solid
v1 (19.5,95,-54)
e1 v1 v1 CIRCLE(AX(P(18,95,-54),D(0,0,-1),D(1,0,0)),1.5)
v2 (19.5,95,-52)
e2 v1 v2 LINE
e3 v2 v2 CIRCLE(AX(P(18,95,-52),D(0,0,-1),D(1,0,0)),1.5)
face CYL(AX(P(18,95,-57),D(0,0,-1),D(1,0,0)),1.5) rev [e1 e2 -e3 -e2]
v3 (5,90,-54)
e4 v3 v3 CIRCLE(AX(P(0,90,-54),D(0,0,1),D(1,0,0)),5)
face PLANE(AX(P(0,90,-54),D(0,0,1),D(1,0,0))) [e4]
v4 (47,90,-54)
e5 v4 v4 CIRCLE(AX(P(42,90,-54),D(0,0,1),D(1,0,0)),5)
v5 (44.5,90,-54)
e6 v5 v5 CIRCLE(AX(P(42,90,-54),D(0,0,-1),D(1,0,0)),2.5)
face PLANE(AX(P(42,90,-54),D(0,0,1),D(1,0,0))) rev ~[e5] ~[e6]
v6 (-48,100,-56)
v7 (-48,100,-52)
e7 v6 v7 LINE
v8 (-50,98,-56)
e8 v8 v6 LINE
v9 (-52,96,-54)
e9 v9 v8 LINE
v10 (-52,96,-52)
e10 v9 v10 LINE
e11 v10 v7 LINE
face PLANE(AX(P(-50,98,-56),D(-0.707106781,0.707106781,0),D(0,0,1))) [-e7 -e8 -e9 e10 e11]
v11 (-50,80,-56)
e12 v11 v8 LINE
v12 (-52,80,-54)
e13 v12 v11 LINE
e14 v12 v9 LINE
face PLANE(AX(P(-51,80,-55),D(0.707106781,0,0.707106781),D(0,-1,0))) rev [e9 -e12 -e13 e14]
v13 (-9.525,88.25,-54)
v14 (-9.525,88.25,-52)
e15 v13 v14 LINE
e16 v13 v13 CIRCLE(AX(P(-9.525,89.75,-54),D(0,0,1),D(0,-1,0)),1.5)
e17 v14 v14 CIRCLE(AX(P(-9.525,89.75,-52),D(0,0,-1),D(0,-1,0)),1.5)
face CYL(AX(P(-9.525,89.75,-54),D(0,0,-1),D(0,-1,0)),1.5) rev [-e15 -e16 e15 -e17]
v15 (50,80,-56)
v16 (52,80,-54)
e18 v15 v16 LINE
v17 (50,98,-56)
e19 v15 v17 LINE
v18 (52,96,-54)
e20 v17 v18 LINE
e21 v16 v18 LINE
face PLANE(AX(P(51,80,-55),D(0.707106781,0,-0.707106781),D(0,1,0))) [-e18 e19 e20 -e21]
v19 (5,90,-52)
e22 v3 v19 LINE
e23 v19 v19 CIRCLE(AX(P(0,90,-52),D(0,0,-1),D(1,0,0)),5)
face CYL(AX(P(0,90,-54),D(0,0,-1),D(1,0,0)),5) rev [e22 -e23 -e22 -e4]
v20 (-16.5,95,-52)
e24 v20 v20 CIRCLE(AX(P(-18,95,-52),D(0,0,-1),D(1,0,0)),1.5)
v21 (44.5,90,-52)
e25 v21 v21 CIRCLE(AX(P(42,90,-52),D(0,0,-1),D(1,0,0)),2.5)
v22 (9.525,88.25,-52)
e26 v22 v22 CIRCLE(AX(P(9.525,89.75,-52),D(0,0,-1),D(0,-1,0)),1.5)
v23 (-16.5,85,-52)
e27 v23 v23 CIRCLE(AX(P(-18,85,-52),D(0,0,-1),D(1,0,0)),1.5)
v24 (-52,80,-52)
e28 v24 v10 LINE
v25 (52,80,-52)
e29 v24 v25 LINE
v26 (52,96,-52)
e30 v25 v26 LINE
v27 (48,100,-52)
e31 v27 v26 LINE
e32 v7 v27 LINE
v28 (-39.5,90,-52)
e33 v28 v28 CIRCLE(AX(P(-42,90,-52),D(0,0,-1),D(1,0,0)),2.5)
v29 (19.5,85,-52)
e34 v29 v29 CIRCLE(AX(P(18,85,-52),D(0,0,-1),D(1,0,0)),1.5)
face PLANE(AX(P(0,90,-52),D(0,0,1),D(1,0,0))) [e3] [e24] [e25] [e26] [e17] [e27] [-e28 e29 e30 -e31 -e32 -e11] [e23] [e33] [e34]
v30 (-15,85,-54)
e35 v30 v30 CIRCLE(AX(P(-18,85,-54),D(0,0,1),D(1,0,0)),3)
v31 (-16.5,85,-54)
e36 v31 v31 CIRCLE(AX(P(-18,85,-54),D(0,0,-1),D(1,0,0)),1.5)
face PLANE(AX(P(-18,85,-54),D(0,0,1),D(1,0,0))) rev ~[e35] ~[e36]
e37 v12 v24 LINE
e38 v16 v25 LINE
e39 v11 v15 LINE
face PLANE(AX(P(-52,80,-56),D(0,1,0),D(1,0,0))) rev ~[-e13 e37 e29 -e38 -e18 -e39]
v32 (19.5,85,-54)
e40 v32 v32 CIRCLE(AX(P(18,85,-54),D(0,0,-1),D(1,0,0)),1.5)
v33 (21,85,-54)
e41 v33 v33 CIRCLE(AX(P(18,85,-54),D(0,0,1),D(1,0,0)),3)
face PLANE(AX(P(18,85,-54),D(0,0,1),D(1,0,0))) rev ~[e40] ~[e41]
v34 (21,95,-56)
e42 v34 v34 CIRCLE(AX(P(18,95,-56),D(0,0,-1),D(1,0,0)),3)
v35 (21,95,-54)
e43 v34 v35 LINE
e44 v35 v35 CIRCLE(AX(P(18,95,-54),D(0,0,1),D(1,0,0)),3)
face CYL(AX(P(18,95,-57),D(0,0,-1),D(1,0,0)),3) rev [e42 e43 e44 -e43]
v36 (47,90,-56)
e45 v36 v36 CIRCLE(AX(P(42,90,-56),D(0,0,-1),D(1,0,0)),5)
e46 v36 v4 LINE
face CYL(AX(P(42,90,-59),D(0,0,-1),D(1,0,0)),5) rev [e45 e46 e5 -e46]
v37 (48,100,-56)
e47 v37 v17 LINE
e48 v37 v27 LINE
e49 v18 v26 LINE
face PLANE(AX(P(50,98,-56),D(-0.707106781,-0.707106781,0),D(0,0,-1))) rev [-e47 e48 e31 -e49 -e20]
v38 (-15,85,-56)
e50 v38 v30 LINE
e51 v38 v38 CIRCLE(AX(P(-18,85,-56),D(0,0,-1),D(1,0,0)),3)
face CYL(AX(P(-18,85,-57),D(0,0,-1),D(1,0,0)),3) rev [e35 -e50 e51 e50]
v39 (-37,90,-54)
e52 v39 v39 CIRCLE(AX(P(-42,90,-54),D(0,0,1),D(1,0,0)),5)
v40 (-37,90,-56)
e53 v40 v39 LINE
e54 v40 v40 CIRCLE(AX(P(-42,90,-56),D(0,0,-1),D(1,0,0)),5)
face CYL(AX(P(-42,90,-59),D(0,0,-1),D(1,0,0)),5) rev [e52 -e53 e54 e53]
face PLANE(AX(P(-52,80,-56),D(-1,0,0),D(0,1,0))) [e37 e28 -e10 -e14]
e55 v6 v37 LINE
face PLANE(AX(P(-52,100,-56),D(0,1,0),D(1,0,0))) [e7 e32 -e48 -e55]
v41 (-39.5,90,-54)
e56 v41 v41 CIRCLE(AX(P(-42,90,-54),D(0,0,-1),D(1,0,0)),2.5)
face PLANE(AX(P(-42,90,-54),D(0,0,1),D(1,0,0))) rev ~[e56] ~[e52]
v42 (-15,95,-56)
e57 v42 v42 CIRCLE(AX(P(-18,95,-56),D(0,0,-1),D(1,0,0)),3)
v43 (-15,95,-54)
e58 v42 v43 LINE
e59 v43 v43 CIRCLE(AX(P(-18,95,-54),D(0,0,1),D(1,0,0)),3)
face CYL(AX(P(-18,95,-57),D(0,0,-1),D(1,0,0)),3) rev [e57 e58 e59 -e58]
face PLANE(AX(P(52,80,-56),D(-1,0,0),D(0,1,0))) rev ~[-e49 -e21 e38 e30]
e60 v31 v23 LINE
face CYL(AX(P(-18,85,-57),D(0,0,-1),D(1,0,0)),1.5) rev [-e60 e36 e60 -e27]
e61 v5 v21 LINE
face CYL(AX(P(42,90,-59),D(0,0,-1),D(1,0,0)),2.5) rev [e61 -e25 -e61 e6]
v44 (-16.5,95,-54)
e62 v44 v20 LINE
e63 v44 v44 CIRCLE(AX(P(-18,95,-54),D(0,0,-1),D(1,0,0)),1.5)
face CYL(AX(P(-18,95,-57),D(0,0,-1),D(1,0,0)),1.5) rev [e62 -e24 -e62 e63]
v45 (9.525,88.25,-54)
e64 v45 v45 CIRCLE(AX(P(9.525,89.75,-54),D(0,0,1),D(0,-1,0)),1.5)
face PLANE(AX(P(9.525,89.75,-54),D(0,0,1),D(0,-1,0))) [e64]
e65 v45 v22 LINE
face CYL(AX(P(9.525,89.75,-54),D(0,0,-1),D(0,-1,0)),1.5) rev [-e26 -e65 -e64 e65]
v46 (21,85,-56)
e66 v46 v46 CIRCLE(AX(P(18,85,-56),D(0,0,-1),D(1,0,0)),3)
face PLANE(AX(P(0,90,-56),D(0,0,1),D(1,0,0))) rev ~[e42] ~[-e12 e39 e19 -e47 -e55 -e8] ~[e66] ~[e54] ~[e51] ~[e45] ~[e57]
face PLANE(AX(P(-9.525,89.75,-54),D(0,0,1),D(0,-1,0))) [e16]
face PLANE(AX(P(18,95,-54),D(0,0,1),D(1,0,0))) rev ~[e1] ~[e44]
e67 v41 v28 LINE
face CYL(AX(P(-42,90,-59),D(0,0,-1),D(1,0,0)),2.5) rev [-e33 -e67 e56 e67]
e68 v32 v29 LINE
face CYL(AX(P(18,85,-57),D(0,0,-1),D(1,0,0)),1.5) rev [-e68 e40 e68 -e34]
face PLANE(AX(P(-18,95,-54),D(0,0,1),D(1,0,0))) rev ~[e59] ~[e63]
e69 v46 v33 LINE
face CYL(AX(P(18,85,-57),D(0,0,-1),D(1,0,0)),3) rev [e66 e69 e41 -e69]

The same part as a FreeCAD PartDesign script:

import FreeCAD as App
import Part
import Sketcher

V = App.Vector


def edges_at(feature, points):
    """Names of the edges that pass closest to the given points."""
    edges = feature.Shape.Edges
    near = lambda p: min(range(len(edges)), key=lambda i: edges[i].distToShape(Part.Vertex(*p))[0])
    return sorted({f"Edge{near(p) + 1}" for p in points})

doc = App.newDocument("Part")
body = doc.addObject("PartDesign::Body", "Body")

# Sketch on XZ plane
sketch1 = body.newObject("Sketcher::SketchObject", "Sketch")
sketch1.AttachmentSupport = (doc.getObject("XZ_Plane"), [""])
sketch1.MapMode = "FlatFace"
sketch1.AttachmentOffset = App.Placement(V(0, 0, -114), App.Rotation())
sketch1.addGeometry(Part.Circle(V(15.8, 58.5, 0), V(0, 0, 1), 1.5), False)
sketch1.addConstraint([
    Sketcher.Constraint("Diameter", 0, 3.0),
    Sketcher.Constraint("DistanceX", -1, 1, 0, 3, 15.75),
    Sketcher.Constraint("DistanceY", -1, 1, 0, 3, 58.525),
])
pad1 = body.newObject("PartDesign::Pad", "Pad")
pad1.Profile = sketch1
pad1.Length = 20
pad1.Reversed = True
body2 = doc.addObject("PartDesign::Body", "Body001")
body2.AllowCompound = True

# Sketch on XZ plane
sketch2 = body2.newObject("Sketcher::SketchObject", "Sketch001")
sketch2.AttachmentSupport = (doc.getObject("XZ_Plane001"), [""])
sketch2.MapMode = "FlatFace"
sketch2.AttachmentOffset = App.Placement(V(0, 0, -114), App.Rotation())
sketch2.addGeometry(Part.Circle(V(15.8, 39.5, 0), V(0, 0, 1), 1.5), False)
sketch2.addConstraint([
    Sketcher.Constraint("Diameter", 0, 3.0),
    Sketcher.Constraint("DistanceX", -1, 1, 0, 3, 15.75),
    Sketcher.Constraint("DistanceY", -1, 1, 0, 3, 39.475),
])
pad2 = body2.newObject("PartDesign::Pad", "Pad001")
pad2.Profile = sketch2
pad2.Length = 20
pad2.Reversed = True
doc.recompute()

boolean = body2.newObject("PartDesign::Boolean", "Boolean")
boolean.Type = "Fuse"
boolean.addObjects([body])
body3 = doc.addObject("PartDesign::Body", "Body002")
body3.AllowCompound = True
doc.recompute()

body2.Placement = App.Placement(V(0, 0, 0), App.Rotation(V(1, 0, 0), 90))
boolean2 = body3.newObject("PartDesign::Boolean", "Boolean001")
boolean2.Type = "Fuse"
boolean2.addObjects([body2])
body4 = doc.addObject("PartDesign::Body", "Body003")
body4.AllowCompound = True
doc.recompute()

body3.Placement = App.Placement(V(-49, 0, -96), App.Rotation(V(0, 0, 1), 90))
boolean3 = body4.newObject("PartDesign::Boolean", "Boolean002")
boolean3.Type = "Fuse"
boolean3.addObjects([body3])
body5 = doc.addObject("PartDesign::Body", "Body004")
body5.AllowCompound = True
doc.recompute()

body4.Placement = App.Placement(V(0, 74, -72), App.Rotation(V(0, 0, 1), 0))
boolean4 = body5.newObject("PartDesign::Boolean", "Boolean003")
boolean4.Type = "Fuse"
boolean4.addObjects([body4])
body6 = doc.addObject("PartDesign::Body", "Body005")

# Sketch on XY plane
sketch3 = body6.newObject("Sketcher::SketchObject", "Sketch002")
sketch3.AttachmentSupport = (doc.getObject("XY_Plane005"), [""])
sketch3.MapMode = "FlatFace"
sketch3.AttachmentOffset = App.Placement(V(0, 0, -59), App.Rotation())
sketch3.addGeometry(Part.Circle(V(-42, 90, 0), V(0, 0, 1), 2.5), False)
sketch3.addConstraint([
    Sketcher.Constraint("Diameter", 0, 5.0),
    Sketcher.Constraint("DistanceX", 0, 3, -1, 1, 42.0),
    Sketcher.Constraint("DistanceY", -1, 1, 0, 3, 90.0),
])
pad3 = body6.newObject("PartDesign::Pad", "Pad002")
pad3.Profile = sketch3
pad3.Length = 20
body7 = doc.addObject("PartDesign::Body", "Body006")
body7.AllowCompound = True

# Sketch on XY plane
sketch4 = body7.newObject("Sketcher::SketchObject", "Sketch003")
sketch4.AttachmentSupport = (doc.getObject("XY_Plane006"), [""])
sketch4.MapMode = "FlatFace"
sketch4.AttachmentOffset = App.Placement(V(0, 0, -59), App.Rotation())
sketch4.addGeometry(Part.Circle(V(42, 90, 0), V(0, 0, 1), 2.5), False)
sketch4.addConstraint([
    Sketcher.Constraint("Diameter", 0, 5.0),
    Sketcher.Constraint("DistanceX", -1, 1, 0, 3, 42.0),
    Sketcher.Constraint("DistanceY", -1, 1, 0, 3, 90.0),
])
pad4 = body7.newObject("PartDesign::Pad", "Pad003")
pad4.Profile = sketch4
pad4.Length = 20
doc.recompute()

boolean5 = body7.newObject("PartDesign::Boolean", "Boolean004")
boolean5.Type = "Fuse"
boolean5.addObjects([body6])
body8 = doc.addObject("PartDesign::Body", "Body007")

# Sketch on XY plane
sketch5 = body8.newObject("Sketcher::SketchObject", "Sketch004")
sketch5.AttachmentSupport = (doc.getObject("XY_Plane007"), [""])
sketch5.MapMode = "FlatFace"
sketch5.AttachmentOffset = App.Placement(V(0, 0, -59), App.Rotation())
sketch5.addGeometry(Part.Circle(V(-42, 90, 0), V(0, 0, 1), 5), False)
sketch5.addConstraint([
    Sketcher.Constraint("Diameter", 0, 10.0),
    Sketcher.Constraint("DistanceX", 0, 3, -1, 1, 42.0),
    Sketcher.Constraint("DistanceY", -1, 1, 0, 3, 90.0),
])
pad5 = body8.newObject("PartDesign::Pad", "Pad004")
pad5.Profile = sketch5
pad5.Length = 5
body9 = doc.addObject("PartDesign::Body", "Body008")
body9.AllowCompound = True

# Sketch on XY plane
sketch6 = body9.newObject("Sketcher::SketchObject", "Sketch005")
sketch6.AttachmentSupport = (doc.getObject("XY_Plane008"), [""])
sketch6.MapMode = "FlatFace"
sketch6.AttachmentOffset = App.Placement(V(0, 0, -59), App.Rotation())
sketch6.addGeometry(Part.Circle(V(42, 90, 0), V(0, 0, 1), 5), False)
sketch6.addConstraint([
    Sketcher.Constraint("Diameter", 0, 10.0),
    Sketcher.Constraint("DistanceX", -1, 1, 0, 3, 42.0),
    Sketcher.Constraint("DistanceY", -1, 1, 0, 3, 90.0),
])
pad6 = body9.newObject("PartDesign::Pad", "Pad005")
pad6.Profile = sketch6
pad6.Length = 5
doc.recompute()

boolean6 = body9.newObject("PartDesign::Boolean", "Boolean005")
boolean6.Type = "Fuse"
boolean6.addObjects([body8])
body10 = doc.addObject("PartDesign::Body", "Body009")

# Sketch on XY plane
sketch7 = body10.newObject("Sketcher::SketchObject", "Sketch006")
sketch7.AttachmentSupport = (doc.getObject("XY_Plane009"), [""])
sketch7.MapMode = "FlatFace"
sketch7.AttachmentOffset = App.Placement(V(0, 0, -57), App.Rotation())
sketch7.addGeometry(Part.Circle(V(18, 85, 0), V(0, 0, 1), 3), False)
sketch7.addConstraint([
    Sketcher.Constraint("Diameter", 0, 6.0),
    Sketcher.Constraint("DistanceX", -1, 1, 0, 3, 18.0),
    Sketcher.Constraint("DistanceY", -1, 1, 0, 3, 85.0),
])
pad7 = body10.newObject("PartDesign::Pad", "Pad006")
pad7.Profile = sketch7
pad7.Length = 3
body11 = doc.addObject("PartDesign::Body", "Body010")

# Sketch on XY plane
sketch8 = body11.newObject("Sketcher::SketchObject", "Sketch007")
sketch8.AttachmentSupport = (doc.getObject("XY_Plane010"), [""])
sketch8.MapMode = "FlatFace"
sketch8.AttachmentOffset = App.Placement(V(0, 0, -57), App.Rotation())
sketch8.addGeometry(Part.Circle(V(-18, 85, 0), V(0, 0, 1), 3), False)
sketch8.addConstraint([
    Sketcher.Constraint("Diameter", 0, 6.0),
    Sketcher.Constraint("DistanceX", 0, 3, -1, 1, 18.0),
    Sketcher.Constraint("DistanceY", -1, 1, 0, 3, 85.0),
])
pad8 = body11.newObject("PartDesign::Pad", "Pad007")
pad8.Profile = sketch8
pad8.Length = 3
body12 = doc.addObject("PartDesign::Body", "Body011")

# Sketch on XY plane
sketch9 = body12.newObject("Sketcher::SketchObject", "Sketch008")
sketch9.AttachmentSupport = (doc.getObject("XY_Plane011"), [""])
sketch9.MapMode = "FlatFace"
sketch9.AttachmentOffset = App.Placement(V(0, 0, -57), App.Rotation())
sketch9.addGeometry(Part.Circle(V(-18, 95, 0), V(0, 0, 1), 3), False)
sketch9.addConstraint([
    Sketcher.Constraint("Diameter", 0, 6.0),
    Sketcher.Constraint("DistanceX", 0, 3, -1, 1, 18.0),
    Sketcher.Constraint("DistanceY", -1, 1, 0, 3, 95.0),
])
pad9 = body12.newObject("PartDesign::Pad", "Pad008")
pad9.Profile = sketch9
pad9.Length = 3
body13 = doc.addObject("PartDesign::Body", "Body012")
body13.AllowCompound = True

# Sketch on XY plane
sketch10 = body13.newObject("Sketcher::SketchObject", "Sketch009")
sketch10.AttachmentSupport = (doc.getObject("XY_Plane012"), [""])
sketch10.MapMode = "FlatFace"
sketch10.AttachmentOffset = App.Placement(V(0, 0, -57), App.Rotation())
sketch10.addGeometry(Part.Circle(V(18, 95, 0), V(0, 0, 1), 3), False)
sketch10.addConstraint([
    Sketcher.Constraint("Diameter", 0, 6.0),
    Sketcher.Constraint("DistanceX", -1, 1, 0, 3, 18.0),
    Sketcher.Constraint("DistanceY", -1, 1, 0, 3, 95.0),
])
pad10 = body13.newObject("PartDesign::Pad", "Pad009")
pad10.Profile = sketch10
pad10.Length = 3
doc.recompute()

boolean7 = body13.newObject("PartDesign::Boolean", "Boolean006")
boolean7.Type = "Fuse"
boolean7.addObjects([body10])
doc.recompute()

boolean8 = body13.newObject("PartDesign::Boolean", "Boolean007")
boolean8.Type = "Fuse"
boolean8.addObjects([body11])
doc.recompute()

boolean9 = body13.newObject("PartDesign::Boolean", "Boolean008")
boolean9.Type = "Fuse"
boolean9.addObjects([body12])
body14 = doc.addObject("PartDesign::Body", "Body013")

# Sketch on XY plane
sketch11 = body14.newObject("Sketcher::SketchObject", "Sketch010")
sketch11.AttachmentSupport = (doc.getObject("XY_Plane013"), [""])
sketch11.MapMode = "FlatFace"
sketch11.AttachmentOffset = App.Placement(V(0, 0, -57), App.Rotation())
sketch11.addGeometry(Part.Circle(V(18, 85, 0), V(0, 0, 1), 1.5), False)
sketch11.addConstraint([
    Sketcher.Constraint("Diameter", 0, 3.0),
    Sketcher.Constraint("DistanceX", -1, 1, 0, 3, 18.0),
    Sketcher.Constraint("DistanceY", -1, 1, 0, 3, 85.0),
])
pad11 = body14.newObject("PartDesign::Pad", "Pad010")
pad11.Profile = sketch11
pad11.Length = 60
body15 = doc.addObject("PartDesign::Body", "Body014")

# Sketch on XY plane
sketch12 = body15.newObject("Sketcher::SketchObject", "Sketch011")
sketch12.AttachmentSupport = (doc.getObject("XY_Plane014"), [""])
sketch12.MapMode = "FlatFace"
sketch12.AttachmentOffset = App.Placement(V(0, 0, -57), App.Rotation())
sketch12.addGeometry(Part.Circle(V(-18, 85, 0), V(0, 0, 1), 1.5), False)
sketch12.addConstraint([
    Sketcher.Constraint("Diameter", 0, 3.0),
    Sketcher.Constraint("DistanceX", 0, 3, -1, 1, 18.0),
    Sketcher.Constraint("DistanceY", -1, 1, 0, 3, 85.0),
])
pad12 = body15.newObject("PartDesign::Pad", "Pad011")
pad12.Profile = sketch12
pad12.Length = 60
body16 = doc.addObject("PartDesign::Body", "Body015")

# Sketch on XY plane
sketch13 = body16.newObject("Sketcher::SketchObject", "Sketch012")
sketch13.AttachmentSupport = (doc.getObject("XY_Plane015"), [""])
sketch13.MapMode = "FlatFace"
sketch13.AttachmentOffset = App.Placement(V(0, 0, -57), App.Rotation())
sketch13.addGeometry(Part.Circle(V(-18, 95, 0), V(0, 0, 1), 1.5), False)
sketch13.addConstraint([
    Sketcher.Constraint("Diameter", 0, 3.0),
    Sketcher.Constraint("DistanceX", 0, 3, -1, 1, 18.0),
    Sketcher.Constraint("DistanceY", -1, 1, 0, 3, 95.0),
])
pad13 = body16.newObject("PartDesign::Pad", "Pad012")
pad13.Profile = sketch13
pad13.Length = 60
body17 = doc.addObject("PartDesign::Body", "Body016")
body17.AllowCompound = True

# Sketch on XY plane
sketch14 = body17.newObject("Sketcher::SketchObject", "Sketch013")
sketch14.AttachmentSupport = (doc.getObject("XY_Plane016"), [""])
sketch14.MapMode = "FlatFace"
sketch14.AttachmentOffset = App.Placement(V(0, 0, -57), App.Rotation())
sketch14.addGeometry(Part.Circle(V(18, 95, 0), V(0, 0, 1), 1.5), False)
sketch14.addConstraint([
    Sketcher.Constraint("Diameter", 0, 3.0),
    Sketcher.Constraint("DistanceX", -1, 1, 0, 3, 18.0),
    Sketcher.Constraint("DistanceY", -1, 1, 0, 3, 95.0),
])
pad14 = body17.newObject("PartDesign::Pad", "Pad013")
pad14.Profile = sketch14
pad14.Length = 60
doc.recompute()

boolean10 = body17.newObject("PartDesign::Boolean", "Boolean009")
boolean10.Type = "Fuse"
boolean10.addObjects([body14])
doc.recompute()

boolean11 = body17.newObject("PartDesign::Boolean", "Boolean010")
boolean11.Type = "Fuse"
boolean11.addObjects([body15])
doc.recompute()

boolean12 = body17.newObject("PartDesign::Boolean", "Boolean011")
boolean12.Type = "Fuse"
boolean12.addObjects([body16])
body18 = doc.addObject("PartDesign::Body", "Body017")

# Sketch on XY plane
sketch15 = body18.newObject("Sketcher::SketchObject", "Sketch014")
sketch15.AttachmentSupport = (doc.getObject("XY_Plane017"), [""])
sketch15.MapMode = "FlatFace"
sketch15.AttachmentOffset = App.Placement(V(0, 0, -54), App.Rotation())
sketch15.addGeometry(Part.Circle(V(0, 90, 0), V(0, 0, 1), 5), False)
sketch15.addConstraint([
    Sketcher.Constraint("PointOnObject", 0, 3, -2),
    Sketcher.Constraint("Diameter", 0, 10.0),
    Sketcher.Constraint("DistanceY", -1, 1, 0, 3, 90.0),
])
pad15 = body18.newObject("PartDesign::Pad", "Pad014")
pad15.Profile = sketch15
pad15.Length = 5
body19 = doc.addObject("PartDesign::Body", "Body018")

# Sketch on XY plane
sketch16 = body19.newObject("Sketcher::SketchObject", "Sketch015")
sketch16.AttachmentSupport = (doc.getObject("XY_Plane018"), [""])
sketch16.MapMode = "FlatFace"
sketch16.AttachmentOffset = App.Placement(V(0, 0, -56), App.Rotation())
sketch16.addGeometry([
    Part.LineSegment(V(-52, 100, 0), V(-52, 80, 0)),
    Part.LineSegment(V(-52, 80, 0), V(52, 80, 0)),
    Part.LineSegment(V(52, 80, 0), V(52, 100, 0)),
    Part.LineSegment(V(52, 100, 0), V(-52, 100, 0)),
], False)
sketch16.addConstraint([
    Sketcher.Constraint("Coincident", 0, 2, 1, 1),
    Sketcher.Constraint("Coincident", 1, 2, 2, 1),
    Sketcher.Constraint("Coincident", 2, 2, 3, 1),
    Sketcher.Constraint("Coincident", 3, 2, 0, 1),
    Sketcher.Constraint("Vertical", 0),
    Sketcher.Constraint("Horizontal", 1),
    Sketcher.Constraint("Vertical", 2),
    Sketcher.Constraint("Horizontal", 3),
    Sketcher.Constraint("DistanceX", 1, 1, 1, 2, 104.0),
    Sketcher.Constraint("DistanceY", 0, 2, 0, 1, 20.0),
    Sketcher.Constraint("DistanceX", 0, 2, -1, 1, 52.0),
    Sketcher.Constraint("DistanceY", -1, 1, 0, 2, 80.0),
])
pad16 = body19.newObject("PartDesign::Pad", "Pad015")
pad16.Profile = sketch16
pad16.Length = 4
doc.recompute()

boolean13 = body19.newObject("PartDesign::Boolean", "Boolean012")
boolean13.Type = "Cut"
boolean13.addObjects([body18])
doc.recompute()

boolean14 = body19.newObject("PartDesign::Boolean", "Boolean013")
boolean14.Type = "Cut"
boolean14.addObjects([body17])
doc.recompute()

boolean15 = body19.newObject("PartDesign::Boolean", "Boolean014")
boolean15.Type = "Cut"
boolean15.addObjects([body13])
doc.recompute()

boolean16 = body19.newObject("PartDesign::Boolean", "Boolean015")
boolean16.Type = "Cut"
boolean16.addObjects([body9])
doc.recompute()

boolean17 = body19.newObject("PartDesign::Boolean", "Boolean016")
boolean17.Type = "Cut"
boolean17.addObjects([body7])
doc.recompute()

chamfer = body19.newObject("PartDesign::Chamfer", "Chamfer")
chamfer.Base = (boolean17, edges_at(boolean17, [(-52, 100, -54), (52, 100, -54)]))
chamfer.Size = 4
doc.recompute()

chamfer2 = body19.newObject("PartDesign::Chamfer", "Chamfer001")
chamfer2.Base = (chamfer, edges_at(chamfer, [(-52, 88, -56), (52, 88, -56)]))
chamfer2.Size = 2
doc.recompute()

boolean18 = body19.newObject("PartDesign::Boolean", "Boolean017")
boolean18.Type = "Cut"
boolean18.addObjects([body5])

doc.recompute()
